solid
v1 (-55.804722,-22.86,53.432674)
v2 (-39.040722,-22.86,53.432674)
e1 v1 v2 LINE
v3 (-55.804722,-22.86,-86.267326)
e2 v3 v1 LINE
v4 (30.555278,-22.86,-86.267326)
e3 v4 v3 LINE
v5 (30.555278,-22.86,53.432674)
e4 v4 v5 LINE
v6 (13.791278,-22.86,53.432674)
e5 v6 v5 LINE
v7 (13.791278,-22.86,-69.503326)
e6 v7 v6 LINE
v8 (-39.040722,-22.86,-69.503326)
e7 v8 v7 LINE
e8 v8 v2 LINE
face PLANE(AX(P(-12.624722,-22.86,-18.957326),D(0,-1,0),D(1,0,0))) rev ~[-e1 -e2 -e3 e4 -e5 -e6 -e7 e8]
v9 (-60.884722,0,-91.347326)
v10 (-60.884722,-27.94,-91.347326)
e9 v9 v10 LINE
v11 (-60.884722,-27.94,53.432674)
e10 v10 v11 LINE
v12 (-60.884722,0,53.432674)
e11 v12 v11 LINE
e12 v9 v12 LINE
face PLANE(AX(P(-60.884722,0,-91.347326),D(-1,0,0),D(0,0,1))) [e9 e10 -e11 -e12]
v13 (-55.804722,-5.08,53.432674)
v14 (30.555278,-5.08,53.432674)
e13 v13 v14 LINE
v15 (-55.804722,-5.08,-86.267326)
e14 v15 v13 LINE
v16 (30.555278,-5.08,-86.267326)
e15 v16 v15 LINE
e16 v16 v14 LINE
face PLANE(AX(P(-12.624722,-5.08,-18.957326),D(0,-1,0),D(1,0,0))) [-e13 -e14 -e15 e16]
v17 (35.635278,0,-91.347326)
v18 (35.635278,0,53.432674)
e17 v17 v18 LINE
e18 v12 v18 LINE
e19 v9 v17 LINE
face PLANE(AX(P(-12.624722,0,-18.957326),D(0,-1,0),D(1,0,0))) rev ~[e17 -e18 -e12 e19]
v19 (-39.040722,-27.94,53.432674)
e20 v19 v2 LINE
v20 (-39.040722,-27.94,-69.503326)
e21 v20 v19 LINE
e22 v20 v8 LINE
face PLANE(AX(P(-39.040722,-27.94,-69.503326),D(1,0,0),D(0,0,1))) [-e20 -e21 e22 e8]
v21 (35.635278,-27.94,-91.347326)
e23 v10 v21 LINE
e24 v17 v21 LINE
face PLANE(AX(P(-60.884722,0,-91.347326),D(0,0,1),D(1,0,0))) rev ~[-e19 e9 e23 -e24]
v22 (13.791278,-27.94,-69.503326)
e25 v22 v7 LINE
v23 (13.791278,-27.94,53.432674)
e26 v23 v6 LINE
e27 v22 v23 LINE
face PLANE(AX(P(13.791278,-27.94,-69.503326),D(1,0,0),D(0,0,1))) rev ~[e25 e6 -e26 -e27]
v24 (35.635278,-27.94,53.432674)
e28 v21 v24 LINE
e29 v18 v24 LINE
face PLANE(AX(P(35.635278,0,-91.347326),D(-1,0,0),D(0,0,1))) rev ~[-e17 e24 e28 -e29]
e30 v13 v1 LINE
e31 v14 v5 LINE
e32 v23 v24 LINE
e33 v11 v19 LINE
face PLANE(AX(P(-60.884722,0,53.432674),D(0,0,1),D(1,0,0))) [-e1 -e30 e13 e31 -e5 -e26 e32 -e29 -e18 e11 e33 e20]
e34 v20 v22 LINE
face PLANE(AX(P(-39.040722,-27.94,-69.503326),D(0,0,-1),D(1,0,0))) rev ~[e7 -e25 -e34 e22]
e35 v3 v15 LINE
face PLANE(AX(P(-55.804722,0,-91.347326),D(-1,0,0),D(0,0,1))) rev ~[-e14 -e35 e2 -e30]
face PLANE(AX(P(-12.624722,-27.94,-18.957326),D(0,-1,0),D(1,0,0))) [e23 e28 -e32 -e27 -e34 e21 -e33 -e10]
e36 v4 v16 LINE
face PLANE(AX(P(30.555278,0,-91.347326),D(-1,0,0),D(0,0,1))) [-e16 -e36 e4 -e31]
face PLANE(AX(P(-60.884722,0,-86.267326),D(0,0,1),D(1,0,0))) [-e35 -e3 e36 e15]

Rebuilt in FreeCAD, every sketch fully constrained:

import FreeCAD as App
import Part
import Sketcher

V = App.Vector
Q = App.Units.Quantity


def faces_at(feature, points):
    """Names of the faces that lie closest to the given points."""
    faces = feature.Shape.Faces
    near = lambda p: min(range(len(faces)), key=lambda i: faces[i].distToShape(Part.Vertex(*p))[0])
    return sorted({f"Face{near(p) + 1}" for p in points})


def add_polygon(sketch, points):
    """Adds a closed chain of lines whose ends are joined by coincident constraints."""
    first, n = sketch.GeometryCount, len(points)
    for a, b in zip(points, points[1:] + points[:1]):
        sketch.addGeometry(Part.LineSegment(App.Vector(*a, 0), App.Vector(*b, 0)), False)
    for i in range(n):
        sketch.addConstraint(Sketcher.Constraint("Coincident", first + i, 2, first + (i + 1) % n, 1))

doc = App.newDocument("Part")
body = doc.addObject("PartDesign::Body", "Body")

sketch1 = body.newObject("Sketcher::SketchObject", "Sketch")
sketch1.AttachmentSupport = (doc.getObject("XZ_Plane"), [""])
sketch1.MapMode = "FlatFace"
add_polygon(sketch1, [(-61, 53), (-61, -91), (36, -91), (36, 53)])
sketch1.addConstraint([
    Sketcher.Constraint("Vertical", 0),
    Sketcher.Constraint("Horizontal", 1),
    Sketcher.Constraint("Vertical", 2),
    Sketcher.Constraint("Horizontal", 3),
    Sketcher.Constraint("DistanceX", 1, 1, 1, 2, Q("3.8 in")),
    Sketcher.Constraint("DistanceY", 0, 2, 0, 1, Q("5.7 in")),
    Sketcher.Constraint("DistanceX", 0, 2, -1, 1, Q("60.884722 mm")),
    Sketcher.Constraint("DistanceY", 0, 2, -1, 1, Q("91.347326 mm")),
])
pad1 = body.newObject("PartDesign::Pad", "Pad")
pad1.Profile = sketch1
pad1.Length = Q("1.1 in")
doc.recompute()

thickness = body.newObject("PartDesign::Thickness", "Thickness")
thickness.Base = (pad1, faces_at(pad1, [(-12.625, -13.97, 53.433)]))
thickness.Value = Q("0.2 in")
thickness.Reversed = True
thickness.Join = "Arc"

sketch2 = body.newObject("Sketcher::SketchObject", "Sketch001")
sketch2.AttachmentSupport = (doc.getObject("XZ_Plane"), [""])
sketch2.MapMode = "FlatFace"
sketch2.AttachmentOffset = App.Placement(V(0, 0, 1.1 * 25.4), App.Rotation())
add_polygon(sketch2, [(-39, 53), (-39, -70), (14, -70), (14, 53)])
sketch2.addConstraint([
    Sketcher.Constraint("Vertical", 0),
    Sketcher.Constraint("Horizontal", 1),
    Sketcher.Constraint("Vertical", 2),
    Sketcher.Constraint("Horizontal", 3),
    Sketcher.Constraint("DistanceX", 1, 1, 1, 2, Q("2.08 in")),
    Sketcher.Constraint("DistanceY", 0, 2, 0, 1, Q("4.84 in")),
    Sketcher.Constraint("DistanceX", 0, 2, -1, 1, Q("39.040722 mm")),
    Sketcher.Constraint("DistanceY", 0, 2, -1, 1, Q("69.503326 mm")),
])
pocket1 = body.newObject("PartDesign::Pocket", "Pocket")
pocket1.Profile = sketch2
pocket1.Length = Q("0.3 in")

doc.recompute()
